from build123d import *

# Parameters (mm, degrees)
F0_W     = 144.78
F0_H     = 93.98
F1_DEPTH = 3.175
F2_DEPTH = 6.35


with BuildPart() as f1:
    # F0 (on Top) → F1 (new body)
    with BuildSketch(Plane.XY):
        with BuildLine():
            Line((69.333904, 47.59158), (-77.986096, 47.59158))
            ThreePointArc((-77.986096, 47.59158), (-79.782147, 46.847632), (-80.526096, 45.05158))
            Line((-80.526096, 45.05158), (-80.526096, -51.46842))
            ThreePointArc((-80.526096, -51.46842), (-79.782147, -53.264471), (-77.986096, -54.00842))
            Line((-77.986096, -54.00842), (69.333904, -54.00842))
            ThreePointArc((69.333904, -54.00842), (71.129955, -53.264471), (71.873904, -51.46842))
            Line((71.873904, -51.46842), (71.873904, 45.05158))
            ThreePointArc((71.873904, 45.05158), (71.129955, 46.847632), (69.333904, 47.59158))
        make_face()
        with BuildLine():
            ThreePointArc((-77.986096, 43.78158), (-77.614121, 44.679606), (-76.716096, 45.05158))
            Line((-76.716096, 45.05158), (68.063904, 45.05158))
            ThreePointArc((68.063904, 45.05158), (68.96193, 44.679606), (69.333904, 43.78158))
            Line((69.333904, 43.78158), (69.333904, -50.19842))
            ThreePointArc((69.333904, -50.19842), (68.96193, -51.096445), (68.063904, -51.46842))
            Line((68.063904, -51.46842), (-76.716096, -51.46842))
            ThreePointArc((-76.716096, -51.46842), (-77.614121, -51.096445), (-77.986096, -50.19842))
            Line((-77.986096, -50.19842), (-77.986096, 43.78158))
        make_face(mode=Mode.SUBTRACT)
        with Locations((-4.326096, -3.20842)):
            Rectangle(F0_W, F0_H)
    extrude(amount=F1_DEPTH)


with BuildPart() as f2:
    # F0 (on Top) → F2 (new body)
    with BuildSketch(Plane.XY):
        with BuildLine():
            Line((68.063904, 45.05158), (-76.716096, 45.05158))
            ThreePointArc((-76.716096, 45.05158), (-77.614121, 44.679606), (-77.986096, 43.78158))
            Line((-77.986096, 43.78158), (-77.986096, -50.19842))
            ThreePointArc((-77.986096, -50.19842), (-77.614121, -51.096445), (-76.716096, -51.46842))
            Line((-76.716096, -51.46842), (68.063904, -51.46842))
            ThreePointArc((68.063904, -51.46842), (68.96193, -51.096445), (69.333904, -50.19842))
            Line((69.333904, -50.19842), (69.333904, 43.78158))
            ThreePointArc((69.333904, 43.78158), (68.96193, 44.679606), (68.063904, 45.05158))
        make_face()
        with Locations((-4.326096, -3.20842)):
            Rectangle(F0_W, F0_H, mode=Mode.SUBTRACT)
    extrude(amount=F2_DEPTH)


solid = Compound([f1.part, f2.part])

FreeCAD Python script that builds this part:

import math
import FreeCAD as App
import Part
import Sketcher
from FreeCAD import Vector
Q = App.Units.Quantity

doc = App.newDocument("Part")
params = doc.addObject("Spreadsheet::Sheet", "Params")
for row, (alias, value) in enumerate([
    ("sketch1_radius", "0.1 in"),
    ("sketch1_radius2", "0.05 in"),
    ("sketch1_width", "5.8 in"),
    ("sketch1_height", "3.8 in"),
    ("pad1_length", "0.125 in"),
    ("sketch2_radius", "0.05 in"),
    ("sketch2_width", "5.7 in"),
    ("sketch2_height", "3.7 in"),
    ("pad2_length", "0.25 in"),
], start=1):
    params.set(f"A{row}", alias)
    params.set(f"B{row}", "=" + value)
    params.setAlias(f"B{row}", alias)

body = doc.addObject("PartDesign::Body", "Body")
body.AllowCompound = True

sketch1 = doc.addObject("Sketcher::SketchObject", "Sketch")
body.addObject(sketch1)
sketch1.AttachmentSupport = (doc.XY_Plane, [""])
sketch1.MapMode = "FlatFace"
sketch1.addGeometry([
    Part.LineSegment(Vector(69.3, 47.6, 0), Vector(-78, 47.6, 0)),
    Part.ArcOfCircle(Part.Circle(Vector(-78, 45.1, 0), Vector(0, 0, 1), 2.5), math.radians(90), math.radians(180)),
    Part.LineSegment(Vector(-80.5, 45.1, 0), Vector(-80.5, -51.5, 0)),
    Part.ArcOfCircle(Part.Circle(Vector(-78, -51.5, 0), Vector(0, 0, 1), 2.5), math.radians(-180), math.radians(-90)),
    Part.LineSegment(Vector(-78, -54, 0), Vector(69.3, -54, 0)),
    Part.ArcOfCircle(Part.Circle(Vector(69.3, -51.5, 0), Vector(0, 0, 1), 2.5), math.radians(-90), math.radians(0)),
    Part.LineSegment(Vector(71.9, -51.5, 0), Vector(71.9, 45.1, 0)),
    Part.ArcOfCircle(Part.Circle(Vector(69.3, 45.1, 0), Vector(0, 0, 1), 2.5), math.radians(0), math.radians(90)),
    Part.LineSegment(Vector(-78, -50.2, 0), Vector(-78, 43.8, 0)),
    Part.ArcOfCircle(Part.Circle(Vector(-76.7, 43.8, 0), Vector(0, 0, 1), 1.3), math.radians(90), math.radians(180)),
    Part.LineSegment(Vector(-76.7, 45.1, 0), Vector(68.1, 45.1, 0)),
    Part.ArcOfCircle(Part.Circle(Vector(68.1, 43.8, 0), Vector(0, 0, 1), 1.3), math.radians(0), math.radians(90)),
    Part.LineSegment(Vector(69.3, 43.8, 0), Vector(69.3, -50.2, 0)),
    Part.ArcOfCircle(Part.Circle(Vector(68.1, -50.2, 0), Vector(0, 0, 1), 1.3), math.radians(-90), math.radians(0)),
    Part.LineSegment(Vector(68.1, -51.5, 0), Vector(-76.7, -51.5, 0)),
    Part.ArcOfCircle(Part.Circle(Vector(-76.7, -50.2, 0), Vector(0, 0, 1), 1.3), math.radians(-180), math.radians(-90)),
    Part.LineSegment(Vector(-76.7, 43.8, 0), Vector(-76.7, -50.2, 0)),
    Part.LineSegment(Vector(-76.7, -50.2, 0), Vector(68.1, -50.2, 0)),
    Part.LineSegment(Vector(68.1, -50.2, 0), Vector(68.1, 43.8, 0)),
    Part.LineSegment(Vector(68.1, 43.8, 0), Vector(-76.7, 43.8, 0)),
], False)
sketch1.addConstraint([
    Sketcher.Constraint("Tangent", 0, 2, 1, 1),
    Sketcher.Constraint("Tangent", 1, 2, 2, 1),
    Sketcher.Constraint("Tangent", 2, 2, 3, 1),
    Sketcher.Constraint("Tangent", 3, 2, 4, 1),
    Sketcher.Constraint("Tangent", 4, 2, 5, 1),
    Sketcher.Constraint("Tangent", 5, 2, 6, 1),
    Sketcher.Constraint("Tangent", 6, 2, 7, 1),
    Sketcher.Constraint("Tangent", 7, 2, 0, 1),
    Sketcher.Constraint("Tangent", 8, 2, 9, 2),
    Sketcher.Constraint("Tangent", 9, 1, 10, 1),
    Sketcher.Constraint("Tangent", 10, 2, 11, 2),
    Sketcher.Constraint("Tangent", 11, 1, 12, 1),
    Sketcher.Constraint("Tangent", 12, 2, 13, 2),
    Sketcher.Constraint("Tangent", 13, 1, 14, 1),
    Sketcher.Constraint("Tangent", 14, 2, 15, 2),
    Sketcher.Constraint("Tangent", 15, 1, 8, 1),
    Sketcher.Constraint("Coincident", 16, 2, 17, 1),
    Sketcher.Constraint("Coincident", 17, 2, 18, 1),
    Sketcher.Constraint("Coincident", 18, 2, 19, 1),
    Sketcher.Constraint("Coincident", 19, 2, 16, 1),
    Sketcher.Constraint("Horizontal", 0),
    Sketcher.Constraint("Vertical", 2),
    Sketcher.Constraint("Horizontal", 4),
    Sketcher.Constraint("Vertical", 6),
    Sketcher.Constraint("Vertical", 8),
    Sketcher.Constraint("Horizontal", 10),
    Sketcher.Constraint("Vertical", 12),
    Sketcher.Constraint("Horizontal", 14),
    Sketcher.Constraint("Vertical", 16),
    Sketcher.Constraint("Horizontal", 17),
    Sketcher.Constraint("Vertical", 18),
    Sketcher.Constraint("Horizontal", 19),
    Sketcher.Constraint("Coincident", 16, 2, 15, 3),
    Sketcher.Constraint("Coincident", 17, 2, 13, 3),
    Sketcher.Constraint("Coincident", 18, 2, 11, 3),
    Sketcher.Constraint("Equal", 1, 3),
    Sketcher.Constraint("Equal", 3, 5),
    Sketcher.Constraint("Equal", 5, 7),
    Sketcher.Constraint("Equal", 9, 11),
    Sketcher.Constraint("Horizontal", 6, 2, 9, 1),
    Sketcher.Constraint("Horizontal", 5, 2, 13, 1),
    Sketcher.Constraint("Vertical", 3, 2, 8, 2),
    Sketcher.Constraint("Vertical", 7, 2, 11, 1),
    Sketcher.Constraint("Radius", 1, Q("0.1 in")),
    Sketcher.Constraint("Radius", 9, Q("0.05 in")),
    Sketcher.Constraint("DistanceX", 0, 2, 0, 1, Q("5.8 in")),
    Sketcher.Constraint("DistanceY", 2, 2, 2, 1, Q("3.8 in")),
    Sketcher.Constraint("DistanceY", -1, 1, 1, 3, Q("45.051581 mm")),
    Sketcher.Constraint("DistanceX", 1, 3, -1, 1, Q("77.986097 mm")),
])
sketch1.setExpression("Constraints[43]", "Params.sketch1_radius")
sketch1.setExpression("Constraints[44]", "Params.sketch1_radius2")
sketch1.setExpression("Constraints[45]", "Params.sketch1_width")
sketch1.setExpression("Constraints[46]", "Params.sketch1_height")
pad1 = doc.addObject("PartDesign::Pad", "Pad")
body.addObject(pad1)
pad1.Profile = sketch1
pad1.setExpression("Length", "Params.pad1_length")
body2 = doc.addObject("PartDesign::Body", "Body001")

sketch2 = doc.addObject("Sketcher::SketchObject", "Sketch001")
body2.addObject(sketch2)
sketch2.AttachmentSupport = (doc.getObject("XY_Plane001"), [""])
sketch2.MapMode = "FlatFace"
sketch2.addGeometry([
    Part.LineSegment(Vector(68.1, 45.1, 0), Vector(-76.7, 45.1, 0)),
    Part.ArcOfCircle(Part.Circle(Vector(-76.7, 43.8, 0), Vector(0, 0, 1), 1.3), math.radians(90), math.radians(180)),
    Part.LineSegment(Vector(-78, 43.8, 0), Vector(-78, -50.2, 0)),
    Part.ArcOfCircle(Part.Circle(Vector(-76.7, -50.2, 0), Vector(0, 0, 1), 1.3), math.radians(-180), math.radians(-90)),
    Part.LineSegment(Vector(-76.7, -51.5, 0), Vector(68.1, -51.5, 0)),
    Part.ArcOfCircle(Part.Circle(Vector(68.1, -50.2, 0), Vector(0, 0, 1), 1.3), math.radians(-90), math.radians(0)),
    Part.LineSegment(Vector(69.3, -50.2, 0), Vector(69.3, 43.8, 0)),
    Part.ArcOfCircle(Part.Circle(Vector(68.1, 43.8, 0), Vector(0, 0, 1), 1.3), math.radians(0), math.radians(90)),
    Part.LineSegment(Vector(68.1, -50.2, 0), Vector(-76.7, -50.2, 0)),
    Part.LineSegment(Vector(-76.7, -50.2, 0), Vector(-76.7, 43.8, 0)),
    Part.LineSegment(Vector(-76.7, 43.8, 0), Vector(68.1, 43.8, 0)),
    Part.LineSegment(Vector(68.1, 43.8, 0), Vector(68.1, -50.2, 0)),
], False)
sketch2.addConstraint([
    Sketcher.Constraint("Tangent", 0, 2, 1, 1),
    Sketcher.Constraint("Tangent", 1, 2, 2, 1),
    Sketcher.Constraint("Tangent", 2, 2, 3, 1),
    Sketcher.Constraint("Tangent", 3, 2, 4, 1),
    Sketcher.Constraint("Tangent", 4, 2, 5, 1),
    Sketcher.Constraint("Tangent", 5, 2, 6, 1),
    Sketcher.Constraint("Tangent", 6, 2, 7, 1),
    Sketcher.Constraint("Tangent", 7, 2, 0, 1),
    Sketcher.Constraint("Coincident", 8, 2, 9, 1),
    Sketcher.Constraint("Coincident", 9, 2, 10, 1),
    Sketcher.Constraint("Coincident", 10, 2, 11, 1),
    Sketcher.Constraint("Coincident", 11, 2, 8, 1),
    Sketcher.Constraint("Horizontal", 0),
    Sketcher.Constraint("Vertical", 2),
    Sketcher.Constraint("Horizontal", 4),
    Sketcher.Constraint("Vertical", 6),
    Sketcher.Constraint("Horizontal", 8),
    Sketcher.Constraint("Vertical", 9),
    Sketcher.Constraint("Horizontal", 10),
    Sketcher.Constraint("Vertical", 11),
    Sketcher.Constraint("Coincident", 8, 2, 3, 3),
    Sketcher.Constraint("Coincident", 9, 2, 1, 3),
    Sketcher.Constraint("Coincident", 10, 2, 7, 3),
    Sketcher.Constraint("Equal", 3, 5),
    Sketcher.Constraint("Radius", 1, Q("0.05 in")),
    Sketcher.Constraint("DistanceX", 0, 2, 0, 1, Q("5.7 in")),
    Sketcher.Constraint("DistanceY", 2, 2, 2, 1, Q("3.7 in")),
    Sketcher.Constraint("DistanceY", -1, 1, 1, 3, Q("43.78158 mm")),
    Sketcher.Constraint("DistanceX", 1, 3, -1, 1, Q("76.716096 mm")),
])
sketch2.setExpression("Constraints[24]", "Params.sketch2_radius")
sketch2.setExpression("Constraints[25]", "Params.sketch2_width")
sketch2.setExpression("Constraints[26]", "Params.sketch2_height")
pad2 = doc.addObject("PartDesign::Pad", "Pad001")
body2.addObject(pad2)
pad2.Profile = sketch2
pad2.setExpression("Length", "Params.pad2_length")

doc.recompute()
